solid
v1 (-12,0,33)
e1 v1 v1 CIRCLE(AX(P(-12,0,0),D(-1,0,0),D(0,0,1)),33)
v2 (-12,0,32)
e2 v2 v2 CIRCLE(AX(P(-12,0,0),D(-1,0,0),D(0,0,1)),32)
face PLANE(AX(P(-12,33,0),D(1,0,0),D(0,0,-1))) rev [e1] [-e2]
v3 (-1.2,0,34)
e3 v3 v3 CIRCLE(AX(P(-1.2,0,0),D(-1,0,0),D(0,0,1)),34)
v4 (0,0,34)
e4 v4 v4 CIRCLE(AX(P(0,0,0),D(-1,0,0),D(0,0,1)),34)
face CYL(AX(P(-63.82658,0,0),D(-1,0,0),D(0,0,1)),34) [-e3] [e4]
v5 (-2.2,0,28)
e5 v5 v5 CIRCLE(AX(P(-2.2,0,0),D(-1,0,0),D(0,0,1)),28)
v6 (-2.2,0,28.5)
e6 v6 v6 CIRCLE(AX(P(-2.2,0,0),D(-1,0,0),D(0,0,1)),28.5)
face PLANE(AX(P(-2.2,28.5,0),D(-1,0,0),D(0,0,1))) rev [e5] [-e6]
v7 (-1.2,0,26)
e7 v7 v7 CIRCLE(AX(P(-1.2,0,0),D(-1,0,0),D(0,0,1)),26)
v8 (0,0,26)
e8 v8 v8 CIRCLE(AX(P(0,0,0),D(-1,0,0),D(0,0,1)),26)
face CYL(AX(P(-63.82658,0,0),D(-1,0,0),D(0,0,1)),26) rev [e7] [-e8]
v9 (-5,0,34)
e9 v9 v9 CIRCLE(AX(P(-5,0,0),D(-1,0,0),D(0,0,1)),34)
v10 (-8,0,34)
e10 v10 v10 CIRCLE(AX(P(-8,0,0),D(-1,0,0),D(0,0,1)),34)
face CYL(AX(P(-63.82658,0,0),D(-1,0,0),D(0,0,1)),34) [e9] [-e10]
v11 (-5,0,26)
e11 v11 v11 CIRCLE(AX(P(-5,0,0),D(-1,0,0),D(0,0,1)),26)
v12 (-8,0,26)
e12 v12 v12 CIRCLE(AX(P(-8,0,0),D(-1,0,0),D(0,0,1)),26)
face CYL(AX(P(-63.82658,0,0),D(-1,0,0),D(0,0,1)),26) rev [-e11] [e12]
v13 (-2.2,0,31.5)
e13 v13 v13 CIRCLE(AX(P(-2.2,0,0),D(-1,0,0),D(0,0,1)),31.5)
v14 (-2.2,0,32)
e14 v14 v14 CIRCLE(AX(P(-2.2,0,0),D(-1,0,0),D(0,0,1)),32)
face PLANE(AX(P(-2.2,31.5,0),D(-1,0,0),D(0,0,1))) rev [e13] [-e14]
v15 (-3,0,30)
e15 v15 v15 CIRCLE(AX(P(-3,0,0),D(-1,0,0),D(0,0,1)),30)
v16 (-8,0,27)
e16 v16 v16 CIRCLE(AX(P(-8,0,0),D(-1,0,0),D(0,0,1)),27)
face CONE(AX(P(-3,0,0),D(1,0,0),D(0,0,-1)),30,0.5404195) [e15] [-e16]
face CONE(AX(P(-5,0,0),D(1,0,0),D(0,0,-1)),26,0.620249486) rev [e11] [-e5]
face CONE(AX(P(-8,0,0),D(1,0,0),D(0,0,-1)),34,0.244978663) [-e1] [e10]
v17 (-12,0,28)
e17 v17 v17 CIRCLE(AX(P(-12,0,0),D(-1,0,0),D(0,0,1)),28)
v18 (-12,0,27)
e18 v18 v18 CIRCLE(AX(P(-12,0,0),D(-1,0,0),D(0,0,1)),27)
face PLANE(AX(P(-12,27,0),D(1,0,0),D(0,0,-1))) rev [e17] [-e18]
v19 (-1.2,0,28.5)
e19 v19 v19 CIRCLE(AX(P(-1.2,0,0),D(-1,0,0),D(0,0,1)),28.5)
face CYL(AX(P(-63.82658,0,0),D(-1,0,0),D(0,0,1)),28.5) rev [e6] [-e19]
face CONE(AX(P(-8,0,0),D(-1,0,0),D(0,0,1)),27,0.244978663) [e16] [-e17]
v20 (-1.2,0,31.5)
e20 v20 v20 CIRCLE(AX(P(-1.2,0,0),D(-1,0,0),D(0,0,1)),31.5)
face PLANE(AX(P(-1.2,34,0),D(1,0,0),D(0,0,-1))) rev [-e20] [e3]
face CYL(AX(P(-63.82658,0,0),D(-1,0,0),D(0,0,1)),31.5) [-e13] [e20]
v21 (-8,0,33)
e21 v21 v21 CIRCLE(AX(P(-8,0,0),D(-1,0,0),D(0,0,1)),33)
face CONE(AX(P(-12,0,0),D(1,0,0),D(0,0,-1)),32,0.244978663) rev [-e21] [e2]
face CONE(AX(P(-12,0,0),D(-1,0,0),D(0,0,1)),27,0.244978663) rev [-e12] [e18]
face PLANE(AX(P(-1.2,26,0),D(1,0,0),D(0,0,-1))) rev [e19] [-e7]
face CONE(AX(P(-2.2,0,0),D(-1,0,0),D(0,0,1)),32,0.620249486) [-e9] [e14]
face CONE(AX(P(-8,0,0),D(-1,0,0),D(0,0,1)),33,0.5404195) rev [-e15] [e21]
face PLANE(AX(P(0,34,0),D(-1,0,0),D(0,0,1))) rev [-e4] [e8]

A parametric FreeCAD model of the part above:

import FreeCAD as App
import Part
import Sketcher
from FreeCAD import Vector


def add_polygon(sketch, points):
    """Adds a closed chain of lines whose ends are joined by coincident constraints."""
    first, n = sketch.GeometryCount, len(points)
    for a, b in zip(points, points[1:] + points[:1]):
        sketch.addGeometry(Part.LineSegment(App.Vector(*a, 0), App.Vector(*b, 0)), False)
    for i in range(n):
        sketch.addConstraint(Sketcher.Constraint("Coincident", first + i, 2, first + (i + 1) % n, 1))

doc = App.newDocument("Part")
body = doc.addObject("PartDesign::Body", "Body")

# Sketch on XY plane
sketch1 = body.newObject("Sketcher::SketchObject", "Sketch")
sketch1.AttachmentSupport = (doc.getObject("XY_Plane"), [""])
sketch1.MapMode = "FlatFace"
add_polygon(sketch1, [(0, 26), (0, 34), (-1.2, 34), (-1.2, 31.5), (-2.2, 31.5), (-2.2, 32), (-5, 34), (-8, 34), (-12, 33), (-12, 32), (-8, 33), (-3, 30), (-8, 27), (-12, 28), (-12, 27), (-8, 26), (-5, 26), (-2.2, 28), (-2.2, 28.5), (-1.2, 28.5), (-1.2, 26)])  # lines 0-20
sketch1.addConstraint([
    Sketcher.Constraint("Vertical", 0),
    Sketcher.Constraint("Horizontal", 1),
    Sketcher.Constraint("Vertical", 2),
    Sketcher.Constraint("Horizontal", 3),
    Sketcher.Constraint("Vertical", 4),
    Sketcher.Constraint("Horizontal", 6),
    Sketcher.Constraint("Vertical", 8),
    Sketcher.Constraint("Vertical", 13),
    Sketcher.Constraint("Horizontal", 15),
    Sketcher.Constraint("Vertical", 17),
    Sketcher.Constraint("Horizontal", 18),
    Sketcher.Constraint("Vertical", 19),
    Sketcher.Constraint("Horizontal", 20),
    Sketcher.Constraint("PointOnObject", 0, 2, -2),
    Sketcher.Constraint("Parallel", 7, 9),
    Sketcher.Constraint("Parallel", 12, 14),
    Sketcher.Constraint("Horizontal", 1, 2, 5, 2),
    Sketcher.Constraint("Horizontal", 4, 2, 8, 2),
    Sketcher.Constraint("Horizontal", 7, 2, 9, 2),
    Sketcher.Constraint("Horizontal", 11, 2, 13, 2),
    Sketcher.Constraint("Horizontal", 12, 2, 16, 2),
    Sketcher.Constraint("Horizontal", 15, 2, 19, 2),
    Sketcher.Constraint("Vertical", 6, 2, 9, 2),
    Sketcher.Constraint("Vertical", 9, 2, 11, 2),
    Sketcher.Constraint("Vertical", 8, 2, 12, 2),
    Sketcher.Constraint("Vertical", 11, 2, 14, 2),
    Sketcher.Constraint("Vertical", 5, 2, 15, 2),
    Sketcher.Constraint("Vertical", 4, 2, 16, 2),
    Sketcher.Constraint("Vertical", 2, 2, 18, 2),
    Sketcher.Constraint("Equal", 18, 8),
    Sketcher.Constraint("Equal", 8, 13),
    Sketcher.Constraint("Equal", 4, 17),
    Sketcher.Constraint("Equal", 10, 11),
    Sketcher.Constraint("DistanceX", 3, 2, 3, 1, 1.0),
    Sketcher.Constraint("DistanceX", 6, 2, 6, 1, 3.0),
    Sketcher.Constraint("DistanceY", 0, 1, 0, 2, 8.0),
    Sketcher.Constraint("DistanceX", 1, 2, 1, 1, 1.2),
    Sketcher.Constraint("DistanceY", 2, 2, 2, 1, 2.5),
    Sketcher.Constraint("DistanceY", -1, 1, 0, 2, 34.0),
    Sketcher.Constraint("DistanceX", 5, 2, -1, 1, 5.0),
    Sketcher.Constraint("DistanceX", 7, 2, -1, 1, 12.0),
    Sketcher.Constraint("DistanceX", 10, 2, -1, 1, 3.0),
])
revolution = body.newObject("PartDesign::Revolution", "Revolution")
revolution.Profile = sketch1
revolution.ReferenceAxis = (sketch1, ["H_Axis"])
revolution.Angle = 360

doc.recompute()
